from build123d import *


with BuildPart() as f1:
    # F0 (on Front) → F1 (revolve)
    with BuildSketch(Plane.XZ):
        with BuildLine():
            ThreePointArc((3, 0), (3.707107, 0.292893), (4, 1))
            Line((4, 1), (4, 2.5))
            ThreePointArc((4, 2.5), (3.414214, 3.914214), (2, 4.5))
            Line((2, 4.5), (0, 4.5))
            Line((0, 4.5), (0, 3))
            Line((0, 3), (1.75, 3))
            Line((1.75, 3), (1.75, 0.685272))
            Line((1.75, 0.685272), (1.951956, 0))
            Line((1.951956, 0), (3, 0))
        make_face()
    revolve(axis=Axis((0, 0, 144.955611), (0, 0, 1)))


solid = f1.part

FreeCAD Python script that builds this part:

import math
import FreeCAD as App
import Part
import Sketcher

V = App.Vector
Q = App.Units.Quantity

doc = App.newDocument("Part")
body = doc.addObject("PartDesign::Body", "Body")

# Sketch on XZ plane
sketch1 = body.newObject("Sketcher::SketchObject", "Sketch")
sketch1.AttachmentSupport = (doc.getObject("XZ_Plane"), [""])
sketch1.MapMode = "FlatFace"
sketch1.addGeometry(Part.ArcOfCircle(Part.Circle(V(3, 1, 0), V(0, 0, 1), 1), math.radians(-90), math.radians(0)), False)
sketch1.addGeometry(Part.LineSegment(V(4, 1, 0), V(4, 2.5, 0)), False)
sketch1.addGeometry(Part.ArcOfCircle(Part.Circle(V(2, 2.5, 0), V(0, 0, 1), 2), math.radians(0), math.radians(90)), False)
sketch1.addGeometry(Part.LineSegment(V(2, 4.5, 0), V(0, 4.5, 0)), False)
sketch1.addGeometry(Part.LineSegment(V(0, 4.5, 0), V(0, 3, 0)), False)
sketch1.addGeometry(Part.LineSegment(V(0, 3, 0), V(1.8, 3, 0)), False)
sketch1.addGeometry(Part.LineSegment(V(1.8, 3, 0), V(1.8, 0.7, 0)), False)
sketch1.addGeometry(Part.LineSegment(V(1.8, 0.7, 0), V(2, 0, 0)), False)
sketch1.addGeometry(Part.LineSegment(V(2, 0, 0), V(3, 0, 0)), False)
sketch1.addConstraint(Sketcher.Constraint("Tangent", 0, 2, 1, 1))
sketch1.addConstraint(Sketcher.Constraint("Tangent", 1, 2, 2, 1))
sketch1.addConstraint(Sketcher.Constraint("Tangent", 2, 2, 3, 1))
sketch1.addConstraint(Sketcher.Constraint("Coincident", 3, 2, 4, 1))
sketch1.addConstraint(Sketcher.Constraint("Coincident", 4, 2, 5, 1))
sketch1.addConstraint(Sketcher.Constraint("Coincident", 5, 2, 6, 1))
sketch1.addConstraint(Sketcher.Constraint("Coincident", 6, 2, 7, 1))
sketch1.addConstraint(Sketcher.Constraint("Coincident", 7, 2, 8, 1))
sketch1.addConstraint(Sketcher.Constraint("Tangent", 8, 2, 0, 1))
sketch1.addConstraint(Sketcher.Constraint("Vertical", 1))
sketch1.addConstraint(Sketcher.Constraint("Horizontal", 3))
sketch1.addConstraint(Sketcher.Constraint("Vertical", 4))
sketch1.addConstraint(Sketcher.Constraint("Horizontal", 5))
sketch1.addConstraint(Sketcher.Constraint("Vertical", 6))
sketch1.addConstraint(Sketcher.Constraint("Horizontal", 8))
sketch1.addConstraint(Sketcher.Constraint("PointOnObject", 3, 2, -2))
sketch1.addConstraint(Sketcher.Constraint("PointOnObject", 7, 2, -1))
sketch1.addConstraint(Sketcher.Constraint("Equal", 1, 4))
sketch1.addConstraint(Sketcher.Constraint("Radius", 0, Q("0.999999 mm")))
sketch1.addConstraint(Sketcher.Constraint("Radius", 2, Q("1.999999 mm")))
sketch1.addConstraint(Sketcher.Constraint("DistanceX", 3, 2, 3, 1, Q("2 mm")))
sketch1.addConstraint(Sketcher.Constraint("DistanceY", 1, 1, 1, 2, Q("1.5 mm")))
sketch1.addConstraint(Sketcher.Constraint("DistanceX", 5, 1, 5, 2, Q("1.75 mm")))
sketch1.addConstraint(Sketcher.Constraint("DistanceY", 6, 2, 6, 1, Q("2.314728 mm")))
sketch1.addConstraint(Sketcher.Constraint("Distance", 7, Q("0.714412 mm")))
revolution = body.newObject("PartDesign::Revolution", "Revolution")
revolution.Profile = sketch1
revolution.ReferenceAxis = (sketch1, ["V_Axis"])
revolution.Angle = 360

doc.recompute()
